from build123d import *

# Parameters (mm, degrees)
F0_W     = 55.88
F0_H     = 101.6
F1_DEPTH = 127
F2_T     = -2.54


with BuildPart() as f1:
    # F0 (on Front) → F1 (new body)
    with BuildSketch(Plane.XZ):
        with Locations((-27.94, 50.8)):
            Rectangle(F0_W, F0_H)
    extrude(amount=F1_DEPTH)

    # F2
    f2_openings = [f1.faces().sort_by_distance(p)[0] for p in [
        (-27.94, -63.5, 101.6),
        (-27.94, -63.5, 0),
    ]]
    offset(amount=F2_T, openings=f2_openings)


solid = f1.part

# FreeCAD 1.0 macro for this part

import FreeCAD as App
import Part
import Sketcher
Q = App.Units.Quantity


def faces_at(feature, points):
    """Names of the faces that lie closest to the given points."""
    faces = feature.Shape.Faces
    near = lambda p: min(range(len(faces)), key=lambda i: faces[i].distToShape(Part.Vertex(*p))[0])
    return sorted({f"Face{near(p) + 1}" for p in points})

doc = App.newDocument("Part")
body = doc.addObject("PartDesign::Body", "Body")

# Sketch on XZ plane
sketch1 = body.newObject("Sketcher::SketchObject", "Sketch")
sketch1.AttachmentSupport = (doc.getObject("XZ_Plane"), [""])
sketch1.MapMode = "FlatFace"
sketch1.addGeometry([
    Part.LineSegment(App.Vector(-55.88, 101.6, 0), App.Vector(-55.88, 0, 0)),
    Part.LineSegment(App.Vector(-55.88, 0, 0), App.Vector(0, 0, 0)),
    Part.LineSegment(App.Vector(0, 0, 0), App.Vector(0, 101.6, 0)),
    Part.LineSegment(App.Vector(0, 101.6, 0), App.Vector(-55.88, 101.6, 0)),
], False)
sketch1.addConstraint([
    Sketcher.Constraint("Coincident", 0, 2, 1, 1),
    Sketcher.Constraint("Coincident", 1, 2, 2, 1),
    Sketcher.Constraint("Coincident", 2, 2, 3, 1),
    Sketcher.Constraint("Coincident", 3, 2, 0, 1),
    Sketcher.Constraint("Vertical", 0),
    Sketcher.Constraint("Horizontal", 1),
    Sketcher.Constraint("Vertical", 2),
    Sketcher.Constraint("Horizontal", 3),
    Sketcher.Constraint("Coincident", 1, 2, -1, 1),
    Sketcher.Constraint("DistanceY", 0, 2, 0, 1, Q("4 in")),
    Sketcher.Constraint("DistanceX", 1, 1, 1, 2, Q("2.2 in")),
])
pad1 = body.newObject("PartDesign::Pad", "Pad")
pad1.Profile = sketch1
pad1.Length = Q("5 in")
doc.recompute()

thickness = body.newObject("PartDesign::Thickness", "Thickness")
thickness.Base = (pad1, faces_at(pad1, [(-27.94, -63.5, 101.6), (-27.94, -63.5, 0)]))
thickness.Value = Q("0.1 in")
thickness.Reversed = True
thickness.Join = "Arc"

doc.recompute()
